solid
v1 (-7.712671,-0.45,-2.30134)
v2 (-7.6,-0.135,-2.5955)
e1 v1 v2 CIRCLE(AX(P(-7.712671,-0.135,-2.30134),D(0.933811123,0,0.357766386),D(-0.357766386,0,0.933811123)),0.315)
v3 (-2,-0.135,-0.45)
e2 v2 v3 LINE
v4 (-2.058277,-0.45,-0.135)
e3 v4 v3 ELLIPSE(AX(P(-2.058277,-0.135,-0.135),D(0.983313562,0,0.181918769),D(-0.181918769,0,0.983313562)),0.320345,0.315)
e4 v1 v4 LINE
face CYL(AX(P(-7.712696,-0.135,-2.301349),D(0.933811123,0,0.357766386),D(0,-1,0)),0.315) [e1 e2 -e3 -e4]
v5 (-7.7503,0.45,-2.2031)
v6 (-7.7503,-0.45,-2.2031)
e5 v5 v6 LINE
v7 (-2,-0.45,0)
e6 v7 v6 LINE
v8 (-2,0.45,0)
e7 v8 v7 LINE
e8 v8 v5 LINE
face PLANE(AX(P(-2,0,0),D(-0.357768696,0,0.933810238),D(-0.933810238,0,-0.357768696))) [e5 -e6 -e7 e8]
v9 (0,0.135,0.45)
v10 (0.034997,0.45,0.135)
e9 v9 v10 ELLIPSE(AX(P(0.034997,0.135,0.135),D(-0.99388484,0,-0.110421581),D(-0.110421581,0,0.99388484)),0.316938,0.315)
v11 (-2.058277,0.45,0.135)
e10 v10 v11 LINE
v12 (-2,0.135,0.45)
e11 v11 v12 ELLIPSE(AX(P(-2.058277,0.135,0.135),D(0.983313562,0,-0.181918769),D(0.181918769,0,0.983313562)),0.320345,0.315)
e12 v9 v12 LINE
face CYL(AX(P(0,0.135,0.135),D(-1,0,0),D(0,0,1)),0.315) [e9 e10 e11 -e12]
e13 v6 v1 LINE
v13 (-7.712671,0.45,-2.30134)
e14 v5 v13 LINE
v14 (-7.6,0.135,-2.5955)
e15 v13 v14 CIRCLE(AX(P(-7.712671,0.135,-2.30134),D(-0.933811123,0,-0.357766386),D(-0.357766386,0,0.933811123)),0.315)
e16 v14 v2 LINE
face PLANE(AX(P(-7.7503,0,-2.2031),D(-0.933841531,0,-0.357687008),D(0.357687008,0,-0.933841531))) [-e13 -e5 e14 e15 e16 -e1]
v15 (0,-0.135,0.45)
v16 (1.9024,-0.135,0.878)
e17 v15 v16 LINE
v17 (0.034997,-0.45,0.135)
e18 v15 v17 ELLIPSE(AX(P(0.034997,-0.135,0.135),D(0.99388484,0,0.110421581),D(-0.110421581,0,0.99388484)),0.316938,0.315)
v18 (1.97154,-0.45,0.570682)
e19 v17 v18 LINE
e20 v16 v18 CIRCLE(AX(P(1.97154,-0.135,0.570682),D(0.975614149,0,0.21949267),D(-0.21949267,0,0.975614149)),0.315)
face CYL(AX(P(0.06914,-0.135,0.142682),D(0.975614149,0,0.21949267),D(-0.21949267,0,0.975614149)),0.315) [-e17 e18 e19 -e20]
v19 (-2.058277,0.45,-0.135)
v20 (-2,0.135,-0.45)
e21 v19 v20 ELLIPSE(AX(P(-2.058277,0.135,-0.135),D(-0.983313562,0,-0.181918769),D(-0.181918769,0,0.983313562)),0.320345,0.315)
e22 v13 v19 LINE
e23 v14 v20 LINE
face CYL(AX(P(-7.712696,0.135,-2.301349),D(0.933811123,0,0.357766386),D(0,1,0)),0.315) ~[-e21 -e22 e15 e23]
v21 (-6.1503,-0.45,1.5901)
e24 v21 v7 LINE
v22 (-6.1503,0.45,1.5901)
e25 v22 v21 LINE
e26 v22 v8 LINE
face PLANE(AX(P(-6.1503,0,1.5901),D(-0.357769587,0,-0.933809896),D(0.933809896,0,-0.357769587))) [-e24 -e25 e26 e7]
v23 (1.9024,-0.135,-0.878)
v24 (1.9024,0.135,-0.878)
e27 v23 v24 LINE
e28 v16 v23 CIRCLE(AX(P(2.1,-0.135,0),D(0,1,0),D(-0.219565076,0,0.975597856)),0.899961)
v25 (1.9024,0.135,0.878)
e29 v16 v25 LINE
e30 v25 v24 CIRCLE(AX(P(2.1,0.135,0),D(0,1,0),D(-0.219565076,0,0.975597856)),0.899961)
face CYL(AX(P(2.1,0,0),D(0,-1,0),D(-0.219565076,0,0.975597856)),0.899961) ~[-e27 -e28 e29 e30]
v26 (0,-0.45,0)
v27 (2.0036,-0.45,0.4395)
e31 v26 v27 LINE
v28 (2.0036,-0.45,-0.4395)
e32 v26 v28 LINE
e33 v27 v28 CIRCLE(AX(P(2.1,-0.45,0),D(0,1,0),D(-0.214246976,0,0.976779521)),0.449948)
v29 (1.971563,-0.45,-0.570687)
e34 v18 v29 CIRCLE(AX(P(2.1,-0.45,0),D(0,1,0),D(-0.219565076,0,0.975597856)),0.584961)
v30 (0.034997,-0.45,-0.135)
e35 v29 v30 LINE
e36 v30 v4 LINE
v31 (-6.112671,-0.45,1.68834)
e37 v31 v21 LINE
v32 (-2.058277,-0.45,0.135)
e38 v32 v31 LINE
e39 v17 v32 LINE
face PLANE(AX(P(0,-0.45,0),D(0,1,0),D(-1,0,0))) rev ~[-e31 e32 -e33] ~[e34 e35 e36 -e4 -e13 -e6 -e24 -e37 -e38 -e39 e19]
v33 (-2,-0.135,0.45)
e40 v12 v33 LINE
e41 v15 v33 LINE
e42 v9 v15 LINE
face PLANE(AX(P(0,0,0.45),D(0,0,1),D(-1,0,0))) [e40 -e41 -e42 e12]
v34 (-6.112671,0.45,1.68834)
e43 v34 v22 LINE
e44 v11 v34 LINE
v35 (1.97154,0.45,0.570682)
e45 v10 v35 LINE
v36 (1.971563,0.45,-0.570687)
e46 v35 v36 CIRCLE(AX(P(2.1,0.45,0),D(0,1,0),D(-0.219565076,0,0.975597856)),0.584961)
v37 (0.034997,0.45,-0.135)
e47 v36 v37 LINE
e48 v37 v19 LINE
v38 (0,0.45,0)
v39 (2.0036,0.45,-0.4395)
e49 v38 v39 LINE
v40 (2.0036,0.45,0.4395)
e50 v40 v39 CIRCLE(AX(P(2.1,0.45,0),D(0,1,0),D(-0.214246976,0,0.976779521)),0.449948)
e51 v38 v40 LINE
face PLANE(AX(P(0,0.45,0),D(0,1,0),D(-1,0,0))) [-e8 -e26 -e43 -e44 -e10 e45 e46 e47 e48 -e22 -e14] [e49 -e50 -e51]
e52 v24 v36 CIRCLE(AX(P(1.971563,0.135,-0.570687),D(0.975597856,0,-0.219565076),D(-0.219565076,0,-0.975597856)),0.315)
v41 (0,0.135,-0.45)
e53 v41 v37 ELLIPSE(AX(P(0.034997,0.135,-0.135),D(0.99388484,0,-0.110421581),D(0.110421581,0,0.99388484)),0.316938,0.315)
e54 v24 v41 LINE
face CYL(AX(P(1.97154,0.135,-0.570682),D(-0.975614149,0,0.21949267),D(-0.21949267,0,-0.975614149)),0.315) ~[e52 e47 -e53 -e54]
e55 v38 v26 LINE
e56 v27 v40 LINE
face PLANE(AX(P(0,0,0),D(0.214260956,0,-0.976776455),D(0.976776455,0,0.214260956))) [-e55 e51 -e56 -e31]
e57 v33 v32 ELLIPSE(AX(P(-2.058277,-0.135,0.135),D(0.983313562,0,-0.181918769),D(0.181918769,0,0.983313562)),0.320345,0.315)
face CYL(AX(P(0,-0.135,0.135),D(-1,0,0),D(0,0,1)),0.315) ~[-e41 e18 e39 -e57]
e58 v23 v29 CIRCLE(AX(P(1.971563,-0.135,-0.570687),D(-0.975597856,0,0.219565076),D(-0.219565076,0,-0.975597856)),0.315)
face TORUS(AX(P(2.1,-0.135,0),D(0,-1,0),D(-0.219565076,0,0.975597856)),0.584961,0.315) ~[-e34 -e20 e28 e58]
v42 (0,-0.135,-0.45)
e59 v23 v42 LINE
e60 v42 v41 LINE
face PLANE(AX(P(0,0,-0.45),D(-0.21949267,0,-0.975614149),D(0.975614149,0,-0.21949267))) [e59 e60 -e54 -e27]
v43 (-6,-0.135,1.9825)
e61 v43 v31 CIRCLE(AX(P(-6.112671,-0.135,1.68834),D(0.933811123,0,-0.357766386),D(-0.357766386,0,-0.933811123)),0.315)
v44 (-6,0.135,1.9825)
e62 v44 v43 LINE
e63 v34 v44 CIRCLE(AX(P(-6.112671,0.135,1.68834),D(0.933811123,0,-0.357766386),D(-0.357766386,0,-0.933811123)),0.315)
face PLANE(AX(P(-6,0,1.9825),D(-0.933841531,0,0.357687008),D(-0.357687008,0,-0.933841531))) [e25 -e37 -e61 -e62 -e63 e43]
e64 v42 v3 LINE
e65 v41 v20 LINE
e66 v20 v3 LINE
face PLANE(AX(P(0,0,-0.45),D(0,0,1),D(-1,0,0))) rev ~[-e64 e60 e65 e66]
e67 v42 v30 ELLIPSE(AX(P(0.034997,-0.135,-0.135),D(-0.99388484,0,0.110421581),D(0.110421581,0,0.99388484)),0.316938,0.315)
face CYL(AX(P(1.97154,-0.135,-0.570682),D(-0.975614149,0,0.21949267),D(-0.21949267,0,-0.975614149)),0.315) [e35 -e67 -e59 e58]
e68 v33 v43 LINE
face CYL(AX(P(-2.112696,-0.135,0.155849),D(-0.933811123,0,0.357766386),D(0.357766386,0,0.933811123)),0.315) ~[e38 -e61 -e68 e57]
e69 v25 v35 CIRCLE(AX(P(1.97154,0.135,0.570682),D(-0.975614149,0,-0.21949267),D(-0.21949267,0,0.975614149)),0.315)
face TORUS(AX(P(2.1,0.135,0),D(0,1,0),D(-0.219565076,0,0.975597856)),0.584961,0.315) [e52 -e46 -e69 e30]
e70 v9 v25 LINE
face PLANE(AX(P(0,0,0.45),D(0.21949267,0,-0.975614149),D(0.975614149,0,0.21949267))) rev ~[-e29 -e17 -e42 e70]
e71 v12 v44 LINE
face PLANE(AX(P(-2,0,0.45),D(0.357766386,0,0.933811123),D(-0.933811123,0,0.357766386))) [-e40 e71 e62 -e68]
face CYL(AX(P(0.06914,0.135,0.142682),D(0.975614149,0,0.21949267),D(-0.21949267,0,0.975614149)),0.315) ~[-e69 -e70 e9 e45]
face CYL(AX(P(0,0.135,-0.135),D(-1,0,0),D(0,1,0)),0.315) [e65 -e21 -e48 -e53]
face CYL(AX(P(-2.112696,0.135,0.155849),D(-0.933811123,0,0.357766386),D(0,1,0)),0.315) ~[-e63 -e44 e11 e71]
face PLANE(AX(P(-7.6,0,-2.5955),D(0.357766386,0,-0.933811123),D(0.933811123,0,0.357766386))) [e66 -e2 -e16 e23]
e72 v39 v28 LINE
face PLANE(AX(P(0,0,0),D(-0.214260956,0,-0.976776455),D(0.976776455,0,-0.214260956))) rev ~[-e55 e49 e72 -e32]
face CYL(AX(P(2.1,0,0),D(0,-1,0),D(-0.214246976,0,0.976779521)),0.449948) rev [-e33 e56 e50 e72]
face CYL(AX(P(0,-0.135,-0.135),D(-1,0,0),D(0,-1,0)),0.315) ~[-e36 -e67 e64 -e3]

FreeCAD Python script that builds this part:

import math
import FreeCAD as App
import Part
import Sketcher
from FreeCAD import Vector


def edges_at(feature, points):
    """Names of the edges that pass closest to the given points."""
    edges = feature.Shape.Edges
    near = lambda p: min(range(len(edges)), key=lambda i: edges[i].distToShape(Part.Vertex(*p))[0])
    return sorted({f"Edge{near(p) + 1}" for p in points})

doc = App.newDocument("Part")
body = doc.addObject("PartDesign::Body", "Body")

sketch1 = body.newObject("Sketcher::SketchObject", "Sketch")
sketch1.AttachmentSupport = (doc.getObject("XZ_Plane"), [""])
sketch1.MapMode = "FlatFace"
sketch1.addGeometry([
    Part.LineSegment(Vector(0, 0.45, 0), Vector(1.9, 0.88, 0)),
    Part.ArcOfCircle(Part.Circle(Vector(2.1, 0, 0), Vector(0, 0, 1), 0.9), math.radians(-103), math.radians(103)),
    Part.LineSegment(Vector(1.9, -0.88, 0), Vector(0, -0.45, 0)),
    Part.LineSegment(Vector(0, -0.45, 0), Vector(-2, -0.45, 0)),
    Part.LineSegment(Vector(-2, -0.45, 0), Vector(-7.6, -2.6, 0)),
    Part.LineSegment(Vector(-7.6, -2.6, 0), Vector(-7.75, -2.2, 0)),
    Part.LineSegment(Vector(-7.75, -2.2, 0), Vector(-2, 0, 0)),
    Part.LineSegment(Vector(-2, 0, 0), Vector(-6.15, 1.59, 0)),
    Part.LineSegment(Vector(-6.15, 1.59, 0), Vector(-6, 1.98, 0)),
    Part.LineSegment(Vector(-6, 1.98, 0), Vector(-2, 0.45, 0)),
    Part.LineSegment(Vector(-2, 0.45, 0), Vector(0, 0.45, 0)),
    Part.ArcOfCircle(Part.Circle(Vector(2.1, 0, 0), Vector(0, 0, 1), 0.45), math.radians(-102), math.radians(102)),
    Part.LineSegment(Vector(2, 0.44, 0), Vector(0, 0, 0)),
    Part.LineSegment(Vector(0, 0, 0), Vector(2, -0.44, 0)),
], False)
sketch1.addConstraint([
    Sketcher.Constraint("Tangent", 0, 2, 1, 2),
    Sketcher.Constraint("Tangent", 1, 1, 2, 1),
    Sketcher.Constraint("Coincident", 2, 2, 3, 1),
    Sketcher.Constraint("Coincident", 3, 2, 4, 1),
    Sketcher.Constraint("Coincident", 4, 2, 5, 1),
    Sketcher.Constraint("Coincident", 5, 2, 6, 1),
    Sketcher.Constraint("Coincident", 6, 2, 7, 1),
    Sketcher.Constraint("Coincident", 7, 2, 8, 1),
    Sketcher.Constraint("Coincident", 8, 2, 9, 1),
    Sketcher.Constraint("Coincident", 9, 2, 10, 1),
    Sketcher.Constraint("Coincident", 10, 2, 0, 1),
    Sketcher.Constraint("Tangent", 11, 2, 12, 1),
    Sketcher.Constraint("Coincident", 12, 2, 13, 1),
    Sketcher.Constraint("Tangent", 13, 2, 11, 1),
    Sketcher.Constraint("Horizontal", 3),
    Sketcher.Constraint("Horizontal", 10),
    Sketcher.Constraint("Coincident", 12, 2, -1, 1),
    Sketcher.Constraint("Coincident", 11, 3, 1, 3),
    Sketcher.Constraint("Symmetric", 2, 2, 10, 2, -1, 1),
    Sketcher.Constraint("Symmetric", 0, 2, 1, 1, -1),
    Sketcher.Constraint("PointOnObject", 6, 2, -1),
    Sketcher.Constraint("Perpendicular", 4, 5),
    Sketcher.Constraint("Perpendicular", 5, 6),
    Sketcher.Constraint("Perpendicular", 7, 8),
    Sketcher.Constraint("Perpendicular", 8, 9),
    Sketcher.Constraint("Vertical", 3, 2, 6, 2),
    Sketcher.Constraint("Vertical", 6, 2, 9, 2),
    Sketcher.Constraint("Equal", 5, 8),
    Sketcher.Constraint("Radius", 1, 0.9),
    Sketcher.Constraint("DistanceX", 3, 2, 3, 1, 2.0),
    Sketcher.Constraint("Radius", 11, 0.45),
    Sketcher.Constraint("DistanceX", 8, 2, -1, 1, 6.0),
    Sketcher.Constraint("DistanceX", -1, 1, 1, 3, 2.1),
    Sketcher.Constraint("DistanceX", 5, 2, 7, 2, 1.6),
    Sketcher.Constraint("DistanceY", 3, 2, 9, 2, 0.9),
    Sketcher.Constraint("DistanceY", -1, 1, 7, 2, 1.59),
])
pad1 = body.newObject("PartDesign::Pad", "Pad")
pad1.Profile = sketch1
pad1.Length = 0.9
pad1.Midplane = True
doc.recompute()

fillet = body.newObject("PartDesign::Fillet", "Fillet")
fillet.Base = (pad1, edges_at(pad1, [
    (-4, -0.45, 1.216),
    (-4, 0.45, 1.216),
    (-1, -0.45, 0.45),
    (-1, 0.45, 0.45),
    (3, -0.45, 0),
    (0.951, -0.45, -0.664),
    (0.951, -0.45, 0.664),
    (3, 0.45, 0),
    (0.951, 0.45, 0.664),
    (0.951, 0.45, -0.664),
    (-1, -0.45, -0.45),
    (-4.8, -0.45, -1.523),
    (-1, 0.45, -0.45),
    (-4.8, 0.45, -1.523),
]))
fillet.Radius = 0.315

doc.recompute()
